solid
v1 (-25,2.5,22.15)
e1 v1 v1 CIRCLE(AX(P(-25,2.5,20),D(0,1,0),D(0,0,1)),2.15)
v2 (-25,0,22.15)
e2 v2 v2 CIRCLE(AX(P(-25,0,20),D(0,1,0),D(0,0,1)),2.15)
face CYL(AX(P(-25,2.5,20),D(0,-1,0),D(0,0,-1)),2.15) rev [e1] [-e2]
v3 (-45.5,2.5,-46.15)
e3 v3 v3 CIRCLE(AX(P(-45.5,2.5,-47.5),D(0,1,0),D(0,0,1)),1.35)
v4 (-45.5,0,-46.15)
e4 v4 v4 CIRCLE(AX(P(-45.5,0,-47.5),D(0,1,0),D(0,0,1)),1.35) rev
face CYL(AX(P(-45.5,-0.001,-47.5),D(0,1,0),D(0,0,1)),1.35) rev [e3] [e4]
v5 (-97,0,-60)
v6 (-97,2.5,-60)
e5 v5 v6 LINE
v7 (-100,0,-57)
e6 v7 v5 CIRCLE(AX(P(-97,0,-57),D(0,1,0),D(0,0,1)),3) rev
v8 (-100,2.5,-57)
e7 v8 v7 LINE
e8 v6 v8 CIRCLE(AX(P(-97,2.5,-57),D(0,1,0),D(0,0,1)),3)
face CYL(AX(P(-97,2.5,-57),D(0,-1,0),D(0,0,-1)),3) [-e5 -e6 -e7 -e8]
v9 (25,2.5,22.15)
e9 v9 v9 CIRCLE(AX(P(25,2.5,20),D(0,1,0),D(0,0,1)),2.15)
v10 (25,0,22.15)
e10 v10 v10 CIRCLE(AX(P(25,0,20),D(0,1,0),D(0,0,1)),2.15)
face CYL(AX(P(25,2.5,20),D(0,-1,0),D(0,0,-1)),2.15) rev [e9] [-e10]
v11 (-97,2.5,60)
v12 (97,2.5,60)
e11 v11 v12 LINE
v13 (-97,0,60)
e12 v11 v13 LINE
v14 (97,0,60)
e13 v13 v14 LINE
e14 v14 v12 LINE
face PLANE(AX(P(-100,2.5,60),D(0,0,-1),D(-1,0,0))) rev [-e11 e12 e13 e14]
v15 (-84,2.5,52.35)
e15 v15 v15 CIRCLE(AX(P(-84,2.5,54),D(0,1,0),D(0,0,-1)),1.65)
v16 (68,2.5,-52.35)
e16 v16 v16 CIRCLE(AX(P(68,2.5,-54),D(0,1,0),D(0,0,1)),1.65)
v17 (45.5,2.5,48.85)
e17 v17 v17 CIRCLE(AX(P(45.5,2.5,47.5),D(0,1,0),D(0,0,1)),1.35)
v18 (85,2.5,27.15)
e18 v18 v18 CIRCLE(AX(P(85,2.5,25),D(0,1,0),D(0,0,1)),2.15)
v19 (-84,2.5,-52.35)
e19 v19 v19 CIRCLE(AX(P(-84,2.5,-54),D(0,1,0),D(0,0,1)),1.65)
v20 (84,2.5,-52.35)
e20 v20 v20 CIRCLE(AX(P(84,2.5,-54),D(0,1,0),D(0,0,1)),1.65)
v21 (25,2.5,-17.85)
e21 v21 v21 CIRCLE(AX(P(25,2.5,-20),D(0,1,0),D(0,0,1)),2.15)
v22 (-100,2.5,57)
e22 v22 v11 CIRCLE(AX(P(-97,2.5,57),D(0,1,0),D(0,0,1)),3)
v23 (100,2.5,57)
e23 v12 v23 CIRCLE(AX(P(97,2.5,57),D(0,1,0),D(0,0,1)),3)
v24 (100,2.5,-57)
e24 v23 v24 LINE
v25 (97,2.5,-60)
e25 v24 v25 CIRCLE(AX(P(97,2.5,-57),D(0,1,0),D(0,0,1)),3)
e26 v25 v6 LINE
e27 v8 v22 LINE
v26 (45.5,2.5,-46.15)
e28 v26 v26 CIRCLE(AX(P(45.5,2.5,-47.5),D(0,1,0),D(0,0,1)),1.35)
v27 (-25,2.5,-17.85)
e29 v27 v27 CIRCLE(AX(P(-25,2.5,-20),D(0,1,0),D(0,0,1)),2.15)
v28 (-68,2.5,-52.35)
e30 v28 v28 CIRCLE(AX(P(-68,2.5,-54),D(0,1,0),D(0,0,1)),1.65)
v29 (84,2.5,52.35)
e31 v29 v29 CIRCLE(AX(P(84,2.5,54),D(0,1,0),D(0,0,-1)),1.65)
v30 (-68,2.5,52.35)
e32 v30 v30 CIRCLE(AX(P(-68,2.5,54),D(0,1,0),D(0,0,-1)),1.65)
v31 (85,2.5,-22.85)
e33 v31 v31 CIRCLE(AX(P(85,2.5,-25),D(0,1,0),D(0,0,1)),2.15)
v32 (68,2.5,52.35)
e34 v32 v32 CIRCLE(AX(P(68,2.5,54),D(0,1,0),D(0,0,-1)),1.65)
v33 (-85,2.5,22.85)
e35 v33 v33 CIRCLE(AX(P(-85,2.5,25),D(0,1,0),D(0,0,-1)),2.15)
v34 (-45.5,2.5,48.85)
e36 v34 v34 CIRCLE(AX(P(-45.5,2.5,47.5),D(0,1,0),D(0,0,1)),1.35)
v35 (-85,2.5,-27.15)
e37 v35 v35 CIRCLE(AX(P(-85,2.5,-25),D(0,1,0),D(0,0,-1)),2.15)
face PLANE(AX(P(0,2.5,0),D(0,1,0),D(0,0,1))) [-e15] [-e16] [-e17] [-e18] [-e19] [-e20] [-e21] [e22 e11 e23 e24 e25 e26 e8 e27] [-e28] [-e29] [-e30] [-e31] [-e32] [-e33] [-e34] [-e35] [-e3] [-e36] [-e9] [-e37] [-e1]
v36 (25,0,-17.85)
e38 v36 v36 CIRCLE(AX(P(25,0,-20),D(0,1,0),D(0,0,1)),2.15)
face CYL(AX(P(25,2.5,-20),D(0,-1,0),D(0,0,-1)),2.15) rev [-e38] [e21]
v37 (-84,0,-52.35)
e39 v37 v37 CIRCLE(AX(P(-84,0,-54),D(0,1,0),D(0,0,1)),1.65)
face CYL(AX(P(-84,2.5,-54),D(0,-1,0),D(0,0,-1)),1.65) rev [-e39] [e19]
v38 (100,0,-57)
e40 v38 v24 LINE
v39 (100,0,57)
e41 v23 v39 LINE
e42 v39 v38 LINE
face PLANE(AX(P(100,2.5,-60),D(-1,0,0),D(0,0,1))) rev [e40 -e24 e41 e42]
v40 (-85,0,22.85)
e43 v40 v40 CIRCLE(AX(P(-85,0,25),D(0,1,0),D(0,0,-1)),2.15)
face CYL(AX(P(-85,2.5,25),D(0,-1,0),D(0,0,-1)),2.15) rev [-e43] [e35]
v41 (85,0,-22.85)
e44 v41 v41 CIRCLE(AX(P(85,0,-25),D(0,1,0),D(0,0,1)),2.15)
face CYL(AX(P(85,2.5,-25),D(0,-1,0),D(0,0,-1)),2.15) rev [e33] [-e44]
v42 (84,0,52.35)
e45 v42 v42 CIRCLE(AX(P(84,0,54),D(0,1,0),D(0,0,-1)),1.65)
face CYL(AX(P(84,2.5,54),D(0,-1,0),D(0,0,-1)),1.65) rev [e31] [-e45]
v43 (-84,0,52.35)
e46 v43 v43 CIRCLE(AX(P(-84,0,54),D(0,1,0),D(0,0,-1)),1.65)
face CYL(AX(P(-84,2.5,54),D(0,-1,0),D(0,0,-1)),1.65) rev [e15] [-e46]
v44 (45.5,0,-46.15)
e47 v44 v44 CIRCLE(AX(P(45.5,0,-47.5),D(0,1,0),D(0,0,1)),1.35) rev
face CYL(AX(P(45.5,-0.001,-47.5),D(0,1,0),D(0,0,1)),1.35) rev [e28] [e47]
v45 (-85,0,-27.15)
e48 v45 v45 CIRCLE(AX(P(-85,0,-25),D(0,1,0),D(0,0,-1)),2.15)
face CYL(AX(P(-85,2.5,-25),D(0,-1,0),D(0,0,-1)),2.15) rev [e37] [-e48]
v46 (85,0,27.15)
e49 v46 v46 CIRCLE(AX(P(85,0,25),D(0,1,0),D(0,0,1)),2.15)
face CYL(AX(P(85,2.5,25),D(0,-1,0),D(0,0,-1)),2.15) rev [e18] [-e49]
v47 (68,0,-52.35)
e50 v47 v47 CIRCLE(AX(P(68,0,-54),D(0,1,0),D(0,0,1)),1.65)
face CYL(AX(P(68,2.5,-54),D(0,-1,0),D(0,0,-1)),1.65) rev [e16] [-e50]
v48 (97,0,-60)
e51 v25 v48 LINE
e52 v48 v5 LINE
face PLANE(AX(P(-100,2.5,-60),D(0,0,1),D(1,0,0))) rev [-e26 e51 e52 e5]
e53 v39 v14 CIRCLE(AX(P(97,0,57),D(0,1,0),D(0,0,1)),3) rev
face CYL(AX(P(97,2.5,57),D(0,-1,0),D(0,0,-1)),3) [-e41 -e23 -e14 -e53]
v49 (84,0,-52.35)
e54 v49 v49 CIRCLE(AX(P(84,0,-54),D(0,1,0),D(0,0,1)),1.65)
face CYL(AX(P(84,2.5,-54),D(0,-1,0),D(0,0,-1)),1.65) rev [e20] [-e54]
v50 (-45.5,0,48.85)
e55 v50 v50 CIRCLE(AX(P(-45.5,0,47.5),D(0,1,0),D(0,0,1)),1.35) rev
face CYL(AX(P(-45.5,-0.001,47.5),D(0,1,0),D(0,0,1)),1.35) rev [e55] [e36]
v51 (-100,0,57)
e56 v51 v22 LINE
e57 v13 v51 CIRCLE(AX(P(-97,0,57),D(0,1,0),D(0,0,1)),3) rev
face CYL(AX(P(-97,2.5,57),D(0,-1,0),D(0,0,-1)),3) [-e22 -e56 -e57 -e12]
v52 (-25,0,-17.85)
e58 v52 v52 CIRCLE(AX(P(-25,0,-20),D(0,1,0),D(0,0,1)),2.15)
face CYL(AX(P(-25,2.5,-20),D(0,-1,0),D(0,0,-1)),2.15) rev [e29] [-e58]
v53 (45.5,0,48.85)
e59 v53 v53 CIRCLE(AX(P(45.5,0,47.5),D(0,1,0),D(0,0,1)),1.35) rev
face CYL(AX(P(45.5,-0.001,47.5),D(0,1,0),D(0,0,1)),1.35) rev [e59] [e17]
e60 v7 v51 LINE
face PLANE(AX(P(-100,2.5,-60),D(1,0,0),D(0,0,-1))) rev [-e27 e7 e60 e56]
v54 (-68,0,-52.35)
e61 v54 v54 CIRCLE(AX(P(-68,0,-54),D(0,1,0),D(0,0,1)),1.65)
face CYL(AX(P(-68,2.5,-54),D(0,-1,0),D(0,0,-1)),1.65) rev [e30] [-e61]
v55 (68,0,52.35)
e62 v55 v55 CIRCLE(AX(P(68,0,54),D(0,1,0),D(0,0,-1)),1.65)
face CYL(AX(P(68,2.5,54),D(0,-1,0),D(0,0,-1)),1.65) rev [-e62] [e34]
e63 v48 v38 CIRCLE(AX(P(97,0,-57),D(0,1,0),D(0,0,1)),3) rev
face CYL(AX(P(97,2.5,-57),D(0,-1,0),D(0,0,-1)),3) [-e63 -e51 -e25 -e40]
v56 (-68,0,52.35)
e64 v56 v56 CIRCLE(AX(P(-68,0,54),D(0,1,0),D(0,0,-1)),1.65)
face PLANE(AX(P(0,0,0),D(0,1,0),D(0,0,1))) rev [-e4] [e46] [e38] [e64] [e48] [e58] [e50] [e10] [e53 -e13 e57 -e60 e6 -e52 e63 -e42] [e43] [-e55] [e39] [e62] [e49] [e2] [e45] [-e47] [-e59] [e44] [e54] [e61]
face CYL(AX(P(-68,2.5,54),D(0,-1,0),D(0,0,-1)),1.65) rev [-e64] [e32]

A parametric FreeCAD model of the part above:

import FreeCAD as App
import Part
import Sketcher

V = App.Vector


def edges_at(feature, points):
    """Names of the edges that pass closest to the given points."""
    edges = feature.Shape.Edges
    near = lambda p: min(range(len(edges)), key=lambda i: edges[i].distToShape(Part.Vertex(*p))[0])
    return sorted({f"Edge{near(p) + 1}" for p in points})


def add_polygon(sketch, points):
    """Adds a closed chain of lines whose ends are joined by coincident constraints."""
    first, n = sketch.GeometryCount, len(points)
    for a, b in zip(points, points[1:] + points[:1]):
        sketch.addGeometry(Part.LineSegment(App.Vector(*a, 0), App.Vector(*b, 0)), False)
    for i in range(n):
        sketch.addConstraint(Sketcher.Constraint("Coincident", first + i, 2, first + (i + 1) % n, 1))

doc = App.newDocument("Part")
params = doc.addObject("Spreadsheet::Sheet", "Params")
for row, (alias, value) in enumerate([
    ("sketch1_diameter", "3.3 mm"),
    ("sketch1_diameter2", "4.3 mm"),
    ("sketch1_width", "200 mm"),
    ("sketch1_height", "120 mm"),
    ("pad1_length", "2.5 mm"),
    ("sketch2_diameter", "2.7 mm"),
    ("sketch3_diameter", "2.7 mm"),
    ("sketch4_diameter", "2.7 mm"),
    ("sketch5_diameter", "2.7 mm"),
    ("fillet_radius", "3 mm"),
], start=1):
    params.set(f"A{row}", alias)
    params.set(f"B{row}", "=" + value)
    params.setAlias(f"B{row}", alias)

body = doc.addObject("PartDesign::Body", "Body")

sketch1 = body.newObject("Sketcher::SketchObject", "Sketch")
sketch1.AttachmentSupport = (doc.getObject("XZ_Plane"), [""])
sketch1.MapMode = "FlatFace"
add_polygon(sketch1, [(-100, -60), (-100, 60), (100, 60), (100, -60)])
sketch1.addGeometry(Part.Circle(V(-84, 54, 0), V(0, 0, 1), 1.6), False)
sketch1.addGeometry(Part.Circle(V(-68, 54, 0), V(0, 0, 1), 1.6), False)
sketch1.addGeometry(Part.Circle(V(-85, 25, 0), V(0, 0, 1), 2.1), False)
sketch1.addGeometry(Part.Circle(V(-25, 20, 0), V(0, 0, 1), 2.1), False)
sketch1.addGeometry(Part.Circle(V(68, 54, 0), V(0, 0, 1), 1.6), False)
sketch1.addGeometry(Part.Circle(V(84, 54, 0), V(0, 0, 1), 1.6), False)
sketch1.addGeometry(Part.Circle(V(25, 20, 0), V(0, 0, 1), 2.1), False)
sketch1.addGeometry(Part.Circle(V(85, 25, 0), V(0, 0, 1), 2.1), False)
sketch1.addGeometry(Part.Circle(V(-85, -25, 0), V(0, 0, 1), 2.1), False)
sketch1.addGeometry(Part.Circle(V(-25, -20, 0), V(0, 0, 1), 2.1), False)
sketch1.addGeometry(Part.Circle(V(-84, -54, 0), V(0, 0, 1), 1.6), False)
sketch1.addGeometry(Part.Circle(V(-68, -54, 0), V(0, 0, 1), 1.6), False)
sketch1.addGeometry(Part.Circle(V(25, -20, 0), V(0, 0, 1), 2.1), False)
sketch1.addGeometry(Part.Circle(V(85, -25, 0), V(0, 0, 1), 2.1), False)
sketch1.addGeometry(Part.Circle(V(68, -54, 0), V(0, 0, 1), 1.6), False)
sketch1.addGeometry(Part.Circle(V(84, -54, 0), V(0, 0, 1), 1.6), False)
sketch1.addConstraint(Sketcher.Constraint("Vertical", 0))
sketch1.addConstraint(Sketcher.Constraint("Horizontal", 1))
sketch1.addConstraint(Sketcher.Constraint("Vertical", 2))
sketch1.addConstraint(Sketcher.Constraint("Horizontal", 3))
sketch1.addConstraint(Sketcher.Constraint("Equal", 4, 5))
sketch1.addConstraint(Sketcher.Constraint("Equal", 6, 7))
sketch1.addConstraint(Sketcher.Constraint("Equal", 5, 8))
sketch1.addConstraint(Sketcher.Constraint("Equal", 8, 9))
sketch1.addConstraint(Sketcher.Constraint("Equal", 7, 10))
sketch1.addConstraint(Sketcher.Constraint("Equal", 10, 11))
sketch1.addConstraint(Sketcher.Constraint("Equal", 11, 12))
sketch1.addConstraint(Sketcher.Constraint("Equal", 12, 13))
sketch1.addConstraint(Sketcher.Constraint("Equal", 9, 14))
sketch1.addConstraint(Sketcher.Constraint("Equal", 14, 15))
sketch1.addConstraint(Sketcher.Constraint("Equal", 13, 16))
sketch1.addConstraint(Sketcher.Constraint("Equal", 16, 17))
sketch1.addConstraint(Sketcher.Constraint("Equal", 15, 18))
sketch1.addConstraint(Sketcher.Constraint("Equal", 18, 19))
sketch1.addConstraint(Sketcher.Constraint("Symmetric", 11, 3, 12, 3, -1, 1))
sketch1.addConstraint(Sketcher.Constraint("Symmetric", 10, 3, 13, 3, -1, 1))
sketch1.addConstraint(Sketcher.Constraint("Symmetric", 9, 3, 14, 3, -1, 1))
sketch1.addConstraint(Sketcher.Constraint("Symmetric", 8, 3, 15, 3, -1, 1))
sketch1.addConstraint(Sketcher.Constraint("Symmetric", 7, 3, 16, 3, -1, 1))
sketch1.addConstraint(Sketcher.Constraint("Symmetric", 6, 3, 17, 3, -1, 1))
sketch1.addConstraint(Sketcher.Constraint("Symmetric", 5, 3, 18, 3, -1, 1))
sketch1.addConstraint(Sketcher.Constraint("Symmetric", 4, 3, 19, 3, -1, 1))
sketch1.addConstraint(Sketcher.Constraint("Symmetric", 0, 2, 2, 2, -1, 1))
sketch1.addConstraint(Sketcher.Constraint("Symmetric", 5, 3, 8, 3, -2))
sketch1.addConstraint(Sketcher.Constraint("Symmetric", 4, 3, 9, 3, -2))
sketch1.addConstraint(Sketcher.Constraint("Symmetric", 7, 3, 10, 3, -2))
sketch1.addConstraint(Sketcher.Constraint("Symmetric", 6, 3, 11, 3, -2))
sketch1.addConstraint(Sketcher.Constraint("Horizontal", 4, 3, 5, 3))
sketch1.addConstraint(Sketcher.Constraint("Diameter", 4, 3.3))
sketch1.addConstraint(Sketcher.Constraint("Diameter", 6, 4.3))
sketch1.addConstraint(Sketcher.Constraint("DistanceX", 1, 1, 1, 2, 200.0))
sketch1.addConstraint(Sketcher.Constraint("DistanceY", 0, 1, 0, 2, 120.0))
sketch1.addConstraint(Sketcher.Constraint("DistanceX", 4, 3, -1, 1, 84.0))
sketch1.addConstraint(Sketcher.Constraint("DistanceY", -1, 1, 4, 3, 54.0))
sketch1.addConstraint(Sketcher.Constraint("DistanceX", 5, 3, -1, 1, 68.0))
sketch1.addConstraint(Sketcher.Constraint("DistanceX", 6, 3, -1, 1, 85.0))
sketch1.addConstraint(Sketcher.Constraint("DistanceY", -1, 1, 6, 3, 25.0))
sketch1.addConstraint(Sketcher.Constraint("DistanceX", 7, 3, -1, 1, 25.0))
sketch1.addConstraint(Sketcher.Constraint("DistanceY", -1, 1, 7, 3, 20.0))
sketch1.setExpression("Constraints[36]", "Params.sketch1_diameter")
sketch1.setExpression("Constraints[37]", "Params.sketch1_diameter2")
sketch1.setExpression("Constraints[38]", "Params.sketch1_width")
sketch1.setExpression("Constraints[39]", "Params.sketch1_height")
pad1 = body.newObject("PartDesign::Pad", "Pad")
pad1.Profile = sketch1
pad1.setExpression("Length", "Params.pad1_length")
pad1.Reversed = True

sketch2 = body.newObject("Sketcher::SketchObject", "Sketch001")
sketch2.AttachmentSupport = (doc.getObject("XZ_Plane"), [""])
sketch2.MapMode = "FlatFace"
sketch2.AttachmentOffset = App.Placement(V(0, 0, -2.5), App.Rotation())
sketch2.addGeometry(Part.Circle(V(-45.5, -47.5, 0), V(0, 0, 1), 1.4), False)
sketch2.addConstraint(Sketcher.Constraint("Diameter", 0, 2.7))
sketch2.addConstraint(Sketcher.Constraint("DistanceX", 0, 3, -1, 1, 45.5))
sketch2.addConstraint(Sketcher.Constraint("DistanceY", 0, 3, -1, 1, 47.5))
sketch2.setExpression("Constraints[0]", "Params.sketch2_diameter")
pocket1 = body.newObject("PartDesign::Pocket", "Pocket")
pocket1.Profile = sketch2
pocket1.Type = "UpToFirst"
pocket1.Reversed = True

sketch3 = body.newObject("Sketcher::SketchObject", "Sketch002")
sketch3.AttachmentSupport = (doc.getObject("XZ_Plane"), [""])
sketch3.MapMode = "FlatFace"
sketch3.AttachmentOffset = App.Placement(V(0, 0, -2.5), App.Rotation())
sketch3.addGeometry(Part.Circle(V(45.5, -47.5, 0), V(0, 0, 1), 1.4), False)
sketch3.addConstraint(Sketcher.Constraint("Diameter", 0, 2.7))
sketch3.addConstraint(Sketcher.Constraint("DistanceX", -1, 1, 0, 3, 45.5))
sketch3.addConstraint(Sketcher.Constraint("DistanceY", 0, 3, -1, 1, 47.5))
sketch3.setExpression("Constraints[0]", "Params.sketch3_diameter")
pocket2 = body.newObject("PartDesign::Pocket", "Pocket001")
pocket2.Profile = sketch3
pocket2.Type = "UpToFirst"
pocket2.Reversed = True

sketch4 = body.newObject("Sketcher::SketchObject", "Sketch003")
sketch4.AttachmentSupport = (doc.getObject("XZ_Plane"), [""])
sketch4.MapMode = "FlatFace"
sketch4.AttachmentOffset = App.Placement(V(0, 0, -2.5), App.Rotation())
sketch4.addGeometry(Part.Circle(V(-45.5, 47.5, 0), V(0, 0, 1), 1.4), False)
sketch4.addConstraint(Sketcher.Constraint("Diameter", 0, 2.7))
sketch4.addConstraint(Sketcher.Constraint("DistanceX", 0, 3, -1, 1, 45.5))
sketch4.addConstraint(Sketcher.Constraint("DistanceY", -1, 1, 0, 3, 47.5))
sketch4.setExpression("Constraints[0]", "Params.sketch4_diameter")
pocket3 = body.newObject("PartDesign::Pocket", "Pocket002")
pocket3.Profile = sketch4
pocket3.Type = "UpToFirst"
pocket3.Reversed = True

sketch5 = body.newObject("Sketcher::SketchObject", "Sketch004")
sketch5.AttachmentSupport = (doc.getObject("XZ_Plane"), [""])
sketch5.MapMode = "FlatFace"
sketch5.AttachmentOffset = App.Placement(V(0, 0, -2.5), App.Rotation())
sketch5.addGeometry(Part.Circle(V(45.5, 47.5, 0), V(0, 0, 1), 1.4), False)
sketch5.addConstraint(Sketcher.Constraint("Diameter", 0, 2.7))
sketch5.addConstraint(Sketcher.Constraint("DistanceX", -1, 1, 0, 3, 45.5))
sketch5.addConstraint(Sketcher.Constraint("DistanceY", -1, 1, 0, 3, 47.5))
sketch5.setExpression("Constraints[0]", "Params.sketch5_diameter")
pocket4 = body.newObject("PartDesign::Pocket", "Pocket003")
pocket4.Profile = sketch5
pocket4.Type = "UpToFirst"
pocket4.Reversed = True
doc.recompute()

fillet = body.newObject("PartDesign::Fillet", "Fillet")
fillet.Base = (pocket4, edges_at(pocket4, [
    (-100, 1.25, -60),
    (100, 1.25, -60),
    (100, 1.25, 60),
    (-100, 1.25, 60),
]))
fillet.setExpression("Radius", "Params.fillet_radius")

doc.recompute()
